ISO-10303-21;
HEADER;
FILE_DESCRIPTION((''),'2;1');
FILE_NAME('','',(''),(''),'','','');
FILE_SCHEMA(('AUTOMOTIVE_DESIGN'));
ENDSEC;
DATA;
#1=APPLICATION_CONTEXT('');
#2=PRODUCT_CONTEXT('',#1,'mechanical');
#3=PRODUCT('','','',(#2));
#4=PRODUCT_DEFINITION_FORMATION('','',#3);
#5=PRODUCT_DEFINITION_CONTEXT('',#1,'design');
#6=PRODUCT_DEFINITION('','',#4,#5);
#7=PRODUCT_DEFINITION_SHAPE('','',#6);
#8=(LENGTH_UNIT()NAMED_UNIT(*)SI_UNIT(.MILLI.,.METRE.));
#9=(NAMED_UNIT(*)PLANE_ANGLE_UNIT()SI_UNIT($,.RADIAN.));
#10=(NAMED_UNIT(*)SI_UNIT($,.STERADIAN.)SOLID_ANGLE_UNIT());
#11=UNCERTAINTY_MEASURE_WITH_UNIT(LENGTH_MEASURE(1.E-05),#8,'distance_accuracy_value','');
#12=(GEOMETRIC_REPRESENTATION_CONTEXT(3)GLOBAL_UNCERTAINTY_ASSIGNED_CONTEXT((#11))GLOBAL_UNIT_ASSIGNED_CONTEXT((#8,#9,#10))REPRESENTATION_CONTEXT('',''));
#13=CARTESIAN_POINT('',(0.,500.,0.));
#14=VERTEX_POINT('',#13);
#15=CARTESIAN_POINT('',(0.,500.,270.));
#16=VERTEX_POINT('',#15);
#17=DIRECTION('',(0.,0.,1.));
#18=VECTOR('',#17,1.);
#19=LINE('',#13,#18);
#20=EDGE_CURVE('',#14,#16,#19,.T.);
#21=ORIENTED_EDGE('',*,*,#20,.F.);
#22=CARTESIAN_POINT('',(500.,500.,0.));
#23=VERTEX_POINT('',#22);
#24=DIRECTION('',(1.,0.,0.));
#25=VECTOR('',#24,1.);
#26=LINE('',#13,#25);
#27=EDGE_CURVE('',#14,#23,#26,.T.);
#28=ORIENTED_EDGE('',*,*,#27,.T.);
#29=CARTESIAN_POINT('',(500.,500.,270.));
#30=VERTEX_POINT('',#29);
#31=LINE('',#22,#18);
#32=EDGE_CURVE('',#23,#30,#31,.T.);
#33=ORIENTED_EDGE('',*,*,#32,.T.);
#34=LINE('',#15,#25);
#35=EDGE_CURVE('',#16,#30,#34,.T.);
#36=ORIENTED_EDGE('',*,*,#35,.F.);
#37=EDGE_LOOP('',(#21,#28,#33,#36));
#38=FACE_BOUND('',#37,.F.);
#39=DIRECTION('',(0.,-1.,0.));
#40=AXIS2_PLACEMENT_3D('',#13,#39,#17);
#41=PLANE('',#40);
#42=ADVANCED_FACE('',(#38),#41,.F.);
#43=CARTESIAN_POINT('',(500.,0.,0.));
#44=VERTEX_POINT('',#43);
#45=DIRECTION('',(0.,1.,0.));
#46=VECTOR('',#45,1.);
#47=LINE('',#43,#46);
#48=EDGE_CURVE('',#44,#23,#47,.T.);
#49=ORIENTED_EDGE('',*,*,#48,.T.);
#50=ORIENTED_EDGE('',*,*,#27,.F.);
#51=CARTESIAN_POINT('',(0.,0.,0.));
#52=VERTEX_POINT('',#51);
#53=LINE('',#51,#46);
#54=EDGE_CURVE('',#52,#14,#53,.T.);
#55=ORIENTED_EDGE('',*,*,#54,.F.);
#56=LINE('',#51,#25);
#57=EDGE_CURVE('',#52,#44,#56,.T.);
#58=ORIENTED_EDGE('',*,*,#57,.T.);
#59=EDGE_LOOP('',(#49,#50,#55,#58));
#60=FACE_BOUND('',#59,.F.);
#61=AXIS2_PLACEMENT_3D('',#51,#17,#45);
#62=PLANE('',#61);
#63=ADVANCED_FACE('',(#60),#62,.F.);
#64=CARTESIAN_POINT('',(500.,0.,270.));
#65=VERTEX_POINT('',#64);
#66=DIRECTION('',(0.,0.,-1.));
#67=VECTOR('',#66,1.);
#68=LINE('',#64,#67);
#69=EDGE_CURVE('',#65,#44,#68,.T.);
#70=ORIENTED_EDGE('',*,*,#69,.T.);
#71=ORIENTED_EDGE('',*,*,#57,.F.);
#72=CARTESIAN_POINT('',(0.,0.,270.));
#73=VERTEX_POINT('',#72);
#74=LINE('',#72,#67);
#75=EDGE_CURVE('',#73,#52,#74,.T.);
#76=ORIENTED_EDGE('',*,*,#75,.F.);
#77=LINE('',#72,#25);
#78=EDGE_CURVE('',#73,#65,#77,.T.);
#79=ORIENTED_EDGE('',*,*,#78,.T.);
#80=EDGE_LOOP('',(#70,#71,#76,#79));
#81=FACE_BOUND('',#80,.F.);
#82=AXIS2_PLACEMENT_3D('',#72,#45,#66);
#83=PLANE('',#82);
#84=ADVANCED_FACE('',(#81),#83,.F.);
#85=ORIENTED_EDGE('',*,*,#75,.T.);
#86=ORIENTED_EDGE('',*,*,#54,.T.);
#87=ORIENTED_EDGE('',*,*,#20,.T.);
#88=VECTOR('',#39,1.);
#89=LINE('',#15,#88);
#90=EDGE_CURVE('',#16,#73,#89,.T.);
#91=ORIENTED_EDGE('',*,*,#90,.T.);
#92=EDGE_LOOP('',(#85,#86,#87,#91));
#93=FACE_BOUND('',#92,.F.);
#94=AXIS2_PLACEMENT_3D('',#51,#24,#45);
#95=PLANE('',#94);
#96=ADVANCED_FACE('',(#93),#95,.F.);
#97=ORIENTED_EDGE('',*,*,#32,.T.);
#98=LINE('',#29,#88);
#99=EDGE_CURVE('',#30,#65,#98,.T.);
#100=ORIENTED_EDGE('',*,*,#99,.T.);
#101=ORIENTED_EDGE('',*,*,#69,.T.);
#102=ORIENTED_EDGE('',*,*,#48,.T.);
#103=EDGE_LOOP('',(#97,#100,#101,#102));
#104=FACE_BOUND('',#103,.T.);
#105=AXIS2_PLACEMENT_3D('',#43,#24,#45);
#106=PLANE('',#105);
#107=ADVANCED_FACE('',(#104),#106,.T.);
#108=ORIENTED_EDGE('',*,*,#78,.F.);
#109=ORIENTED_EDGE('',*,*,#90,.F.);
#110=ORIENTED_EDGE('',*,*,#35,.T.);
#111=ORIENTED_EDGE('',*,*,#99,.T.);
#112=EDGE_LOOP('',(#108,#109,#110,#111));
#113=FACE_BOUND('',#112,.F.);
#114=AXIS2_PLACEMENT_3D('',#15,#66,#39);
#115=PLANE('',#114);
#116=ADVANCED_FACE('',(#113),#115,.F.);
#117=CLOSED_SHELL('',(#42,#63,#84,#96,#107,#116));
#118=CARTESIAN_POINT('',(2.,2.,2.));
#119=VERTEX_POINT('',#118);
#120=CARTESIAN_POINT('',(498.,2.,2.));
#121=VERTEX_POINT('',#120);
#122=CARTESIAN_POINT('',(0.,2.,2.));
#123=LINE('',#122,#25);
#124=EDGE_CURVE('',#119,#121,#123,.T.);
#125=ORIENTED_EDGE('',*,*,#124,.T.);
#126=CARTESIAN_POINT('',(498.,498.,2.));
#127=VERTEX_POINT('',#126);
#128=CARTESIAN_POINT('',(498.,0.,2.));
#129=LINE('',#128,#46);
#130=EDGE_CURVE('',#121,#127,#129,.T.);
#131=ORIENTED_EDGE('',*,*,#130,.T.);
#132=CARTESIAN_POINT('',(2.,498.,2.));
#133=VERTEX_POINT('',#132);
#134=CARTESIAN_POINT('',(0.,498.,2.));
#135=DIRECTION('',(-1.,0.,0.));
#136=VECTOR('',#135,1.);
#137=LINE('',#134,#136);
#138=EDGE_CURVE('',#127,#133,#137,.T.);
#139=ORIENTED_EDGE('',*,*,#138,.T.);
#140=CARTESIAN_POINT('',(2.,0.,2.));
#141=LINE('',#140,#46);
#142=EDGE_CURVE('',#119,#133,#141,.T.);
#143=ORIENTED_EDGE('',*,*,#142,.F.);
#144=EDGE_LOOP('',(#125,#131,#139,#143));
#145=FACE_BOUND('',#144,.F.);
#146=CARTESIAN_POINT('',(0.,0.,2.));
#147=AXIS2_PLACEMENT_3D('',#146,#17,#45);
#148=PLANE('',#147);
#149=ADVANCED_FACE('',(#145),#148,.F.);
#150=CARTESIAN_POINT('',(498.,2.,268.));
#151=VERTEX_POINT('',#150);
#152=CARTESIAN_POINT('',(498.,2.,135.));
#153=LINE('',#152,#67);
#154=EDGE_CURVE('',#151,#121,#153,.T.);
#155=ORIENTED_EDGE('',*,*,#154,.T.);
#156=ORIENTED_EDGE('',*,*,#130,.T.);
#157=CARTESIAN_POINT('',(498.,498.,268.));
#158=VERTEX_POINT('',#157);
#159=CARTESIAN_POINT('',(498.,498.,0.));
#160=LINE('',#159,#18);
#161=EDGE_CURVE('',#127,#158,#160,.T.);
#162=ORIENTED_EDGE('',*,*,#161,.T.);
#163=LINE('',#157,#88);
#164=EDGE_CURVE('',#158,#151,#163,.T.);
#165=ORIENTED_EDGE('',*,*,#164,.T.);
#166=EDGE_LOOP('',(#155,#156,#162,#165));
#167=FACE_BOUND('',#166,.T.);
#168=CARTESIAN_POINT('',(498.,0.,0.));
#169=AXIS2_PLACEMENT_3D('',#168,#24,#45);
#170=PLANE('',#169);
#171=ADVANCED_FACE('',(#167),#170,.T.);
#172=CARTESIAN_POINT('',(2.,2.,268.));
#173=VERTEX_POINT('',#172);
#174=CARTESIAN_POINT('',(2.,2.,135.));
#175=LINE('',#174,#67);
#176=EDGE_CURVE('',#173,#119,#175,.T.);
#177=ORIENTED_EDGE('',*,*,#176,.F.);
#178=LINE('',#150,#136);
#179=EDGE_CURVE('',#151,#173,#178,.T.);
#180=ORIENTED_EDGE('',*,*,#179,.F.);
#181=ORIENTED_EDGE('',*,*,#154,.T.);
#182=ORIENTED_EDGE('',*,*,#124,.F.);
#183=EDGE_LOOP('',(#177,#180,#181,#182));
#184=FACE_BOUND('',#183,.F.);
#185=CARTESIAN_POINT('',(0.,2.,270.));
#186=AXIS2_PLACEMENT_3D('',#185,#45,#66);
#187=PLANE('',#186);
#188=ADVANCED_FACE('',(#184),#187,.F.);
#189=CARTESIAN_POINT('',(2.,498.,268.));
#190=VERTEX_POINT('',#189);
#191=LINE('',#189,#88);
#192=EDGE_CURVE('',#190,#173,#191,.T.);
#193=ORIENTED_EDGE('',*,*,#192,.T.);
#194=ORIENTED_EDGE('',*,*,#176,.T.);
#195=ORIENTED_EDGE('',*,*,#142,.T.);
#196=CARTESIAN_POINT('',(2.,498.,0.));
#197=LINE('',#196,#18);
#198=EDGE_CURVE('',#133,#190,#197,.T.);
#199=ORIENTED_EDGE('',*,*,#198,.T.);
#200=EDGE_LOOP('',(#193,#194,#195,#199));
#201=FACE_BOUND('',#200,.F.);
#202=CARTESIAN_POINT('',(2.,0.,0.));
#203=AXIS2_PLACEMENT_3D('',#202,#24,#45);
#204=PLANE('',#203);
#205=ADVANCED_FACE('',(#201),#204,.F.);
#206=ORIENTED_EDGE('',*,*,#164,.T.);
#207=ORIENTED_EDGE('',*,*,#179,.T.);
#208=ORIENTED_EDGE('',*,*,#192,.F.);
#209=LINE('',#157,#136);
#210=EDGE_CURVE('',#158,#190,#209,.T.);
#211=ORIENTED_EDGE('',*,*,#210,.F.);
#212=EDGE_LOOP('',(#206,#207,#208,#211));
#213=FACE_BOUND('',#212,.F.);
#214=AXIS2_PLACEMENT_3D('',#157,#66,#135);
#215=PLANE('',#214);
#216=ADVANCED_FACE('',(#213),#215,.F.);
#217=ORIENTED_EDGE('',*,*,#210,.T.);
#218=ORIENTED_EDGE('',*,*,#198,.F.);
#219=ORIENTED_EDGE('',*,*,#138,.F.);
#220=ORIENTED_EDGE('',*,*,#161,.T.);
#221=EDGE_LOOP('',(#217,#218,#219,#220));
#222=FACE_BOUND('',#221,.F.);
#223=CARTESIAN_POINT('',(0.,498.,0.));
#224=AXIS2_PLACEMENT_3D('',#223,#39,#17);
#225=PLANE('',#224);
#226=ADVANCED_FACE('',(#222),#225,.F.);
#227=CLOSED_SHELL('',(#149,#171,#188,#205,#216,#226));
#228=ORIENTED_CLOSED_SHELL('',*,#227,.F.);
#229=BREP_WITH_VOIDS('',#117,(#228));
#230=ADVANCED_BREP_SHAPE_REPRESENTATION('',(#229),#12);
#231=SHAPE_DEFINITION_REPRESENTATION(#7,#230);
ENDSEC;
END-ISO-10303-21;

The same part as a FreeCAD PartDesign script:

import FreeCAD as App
import Part
import Sketcher

V = App.Vector


def faces_at(feature, points):
    """Names of the faces that lie closest to the given points."""
    faces = feature.Shape.Faces
    near = lambda p: min(range(len(faces)), key=lambda i: faces[i].distToShape(Part.Vertex(*p))[0])
    return sorted({f"Face{near(p) + 1}" for p in points})

doc = App.newDocument("Part")
body = doc.addObject("PartDesign::Body", "Body")

sketch1 = doc.addObject("Sketcher::SketchObject", "Sketch")
body.addObject(sketch1)
sketch1.AttachmentSupport = (doc.YZ_Plane, [""])
sketch1.MapMode = "FlatFace"
sketch1.addGeometry([
    Part.LineSegment(V(0, 270, 0), V(0, 0, 0)),
    Part.LineSegment(V(0, 0, 0), V(500, 0, 0)),
    Part.LineSegment(V(500, 0, 0), V(500, 270, 0)),
    Part.LineSegment(V(500, 270, 0), V(0, 270, 0)),
], False)
sketch1.addConstraint([
    Sketcher.Constraint("Coincident", 0, 2, 1, 1),
    Sketcher.Constraint("Coincident", 1, 2, 2, 1),
    Sketcher.Constraint("Coincident", 2, 2, 3, 1),
    Sketcher.Constraint("Coincident", 3, 2, 0, 1),
    Sketcher.Constraint("Vertical", 0),
    Sketcher.Constraint("Horizontal", 1),
    Sketcher.Constraint("Vertical", 2),
    Sketcher.Constraint("Horizontal", 3),
    Sketcher.Constraint("Coincident", 0, 2, -1, 1),
    Sketcher.Constraint("DistanceX", 1, 1, 1, 2, 500.0),
    Sketcher.Constraint("DistanceY", 0, 2, 0, 1, 270.0),
])
pad1 = doc.addObject("PartDesign::Pad", "Pad")
body.addObject(pad1)
pad1.Profile = sketch1
pad1.Length = 500
doc.recompute()

thickness = doc.addObject("PartDesign::Thickness", "Thickness")
body.addObject(thickness)
thickness.Base = (pad1, faces_at(pad1, [(333.333, 333.333, 270)]))
thickness.Value = 2
thickness.Reversed = True
thickness.Join = "Intersection"

sketch2 = doc.addObject("Sketcher::SketchObject", "Sketch001")
body.addObject(sketch2)
sketch2.AttachmentSupport = (doc.XZ_Plane, [""])
sketch2.MapMode = "FlatFace"
sketch2.AttachmentOffset = App.Placement(V(0, 0, -498), App.Rotation())
sketch2.addGeometry([
    Part.LineSegment(V(498, 270, 0), V(2, 270, 0)),
    Part.LineSegment(V(2, 270, 0), V(2, 268, 0)),
    Part.LineSegment(V(2, 268, 0), V(498, 268, 0)),
    Part.LineSegment(V(498, 268, 0), V(498, 270, 0)),
], False)
sketch2.addConstraint([
    Sketcher.Constraint("Coincident", 0, 2, 1, 1),
    Sketcher.Constraint("Coincident", 1, 2, 2, 1),
    Sketcher.Constraint("Coincident", 2, 2, 3, 1),
    Sketcher.Constraint("Coincident", 3, 2, 0, 1),
    Sketcher.Constraint("Horizontal", 0),
    Sketcher.Constraint("Vertical", 1),
    Sketcher.Constraint("Horizontal", 2),
    Sketcher.Constraint("Vertical", 3),
    Sketcher.Constraint("DistanceY", 1, 2, 1, 1, 2.0),
    Sketcher.Constraint("DistanceX", -1, 1, 0, 2, 2.0),
    Sketcher.Constraint("DistanceX", 0, 2, 0, 1, 496.0),
    Sketcher.Constraint("DistanceY", -1, 1, 0, 2, 270.0),
])
pad2 = doc.addObject("PartDesign::Pad", "Pad001")
body.addObject(pad2)
pad2.Profile = sketch2
pad2.Length = 496

doc.recompute()
